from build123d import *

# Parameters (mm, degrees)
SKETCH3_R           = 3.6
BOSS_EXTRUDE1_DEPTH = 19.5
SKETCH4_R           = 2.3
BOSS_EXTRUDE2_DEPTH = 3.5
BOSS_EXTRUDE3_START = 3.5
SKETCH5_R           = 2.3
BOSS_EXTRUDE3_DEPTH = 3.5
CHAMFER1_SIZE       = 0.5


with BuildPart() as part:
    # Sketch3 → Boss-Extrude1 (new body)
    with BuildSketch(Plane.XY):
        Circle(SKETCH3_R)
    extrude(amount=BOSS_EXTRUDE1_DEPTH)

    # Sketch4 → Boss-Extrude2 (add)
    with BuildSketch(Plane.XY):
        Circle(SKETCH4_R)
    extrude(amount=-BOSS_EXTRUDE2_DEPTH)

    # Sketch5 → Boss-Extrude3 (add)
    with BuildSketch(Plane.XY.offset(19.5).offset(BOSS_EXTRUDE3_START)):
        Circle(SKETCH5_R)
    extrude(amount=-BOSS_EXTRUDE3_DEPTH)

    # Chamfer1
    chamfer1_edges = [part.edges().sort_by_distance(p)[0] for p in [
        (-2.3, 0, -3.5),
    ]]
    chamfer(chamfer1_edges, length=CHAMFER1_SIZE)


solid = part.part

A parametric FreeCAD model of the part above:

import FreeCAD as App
import Part
import Sketcher
from FreeCAD import Vector
Q = App.Units.Quantity


def edges_at(feature, points):
    """Names of the edges that pass closest to the given points."""
    edges = feature.Shape.Edges
    near = lambda p: min(range(len(edges)), key=lambda i: edges[i].distToShape(Part.Vertex(*p))[0])
    return sorted({f"Edge{near(p) + 1}" for p in points})

doc = App.newDocument("Part")
params = doc.addObject("Spreadsheet::Sheet", "Params")
for row, (alias, value) in enumerate([
    ("sketch1_diameter", "7.2 mm"),
    ("pad1_length", "19.5 mm"),
    ("sketch2_diameter", "4.6 mm"),
    ("pad2_length", "3.5 mm"),
    ("sketch3_diameter", "4.6 mm"),
    ("pad3_length", "3.5 mm"),
    ("chamfer_size", "0.5 mm"),
], start=1):
    params.set(f"A{row}", alias)
    params.set(f"B{row}", "=" + value)
    params.setAlias(f"B{row}", alias)

body = doc.addObject("PartDesign::Body", "Body")

# Sketch on XY plane
sketch1 = body.newObject("Sketcher::SketchObject", "Sketch")
sketch1.AttachmentSupport = (doc.getObject("XY_Plane"), [""])
sketch1.MapMode = "FlatFace"
sketch1.addGeometry(Part.Circle(Vector(0, 0, 0), Vector(0, 0, 1), 3.6), False)
sketch1.addConstraint([
    Sketcher.Constraint("Coincident", 0, 3, -1, 1),
    Sketcher.Constraint("Diameter", 0, Q("7.2 mm")),
])
sketch1.setExpression("Constraints[1]", "Params.sketch1_diameter")
pad1 = body.newObject("PartDesign::Pad", "Pad")
pad1.Profile = sketch1
pad1.setExpression("Length", "Params.pad1_length")

# Sketch on XY plane
sketch2 = body.newObject("Sketcher::SketchObject", "Sketch001")
sketch2.AttachmentSupport = (doc.getObject("XY_Plane"), [""])
sketch2.MapMode = "FlatFace"
sketch2.addGeometry(Part.Circle(Vector(0, 0, 0), Vector(0, 0, 1), 2.3), False)
sketch2.addConstraint([
    Sketcher.Constraint("Coincident", 0, 3, -1, 1),
    Sketcher.Constraint("Diameter", 0, Q("4.6 mm")),
])
sketch2.setExpression("Constraints[1]", "Params.sketch2_diameter")
pad2 = body.newObject("PartDesign::Pad", "Pad001")
pad2.Profile = sketch2
pad2.setExpression("Length", "Params.pad2_length")
pad2.Reversed = True

# Sketch on XY plane
sketch3 = body.newObject("Sketcher::SketchObject", "Sketch002")
sketch3.AttachmentSupport = (doc.getObject("XY_Plane"), [""])
sketch3.MapMode = "FlatFace"
sketch3.AttachmentOffset = App.Placement(Vector(0, 0, 23), App.Rotation())
sketch3.addGeometry(Part.Circle(Vector(0, 0, 0), Vector(0, 0, 1), 2.3), False)
sketch3.addConstraint([
    Sketcher.Constraint("Coincident", 0, 3, -1, 1),
    Sketcher.Constraint("Diameter", 0, Q("4.6 mm")),
])
sketch3.setExpression("Constraints[1]", "Params.sketch3_diameter")
pad3 = body.newObject("PartDesign::Pad", "Pad002")
pad3.Profile = sketch3
pad3.setExpression("Length", "Params.pad3_length")
pad3.Reversed = True
doc.recompute()

chamfer = body.newObject("PartDesign::Chamfer", "Chamfer")
chamfer.Base = (pad3, edges_at(pad3, [(-2.3, 0, -3.5)]))
chamfer.setExpression("Size", "Params.chamfer_size")

doc.recompute()
